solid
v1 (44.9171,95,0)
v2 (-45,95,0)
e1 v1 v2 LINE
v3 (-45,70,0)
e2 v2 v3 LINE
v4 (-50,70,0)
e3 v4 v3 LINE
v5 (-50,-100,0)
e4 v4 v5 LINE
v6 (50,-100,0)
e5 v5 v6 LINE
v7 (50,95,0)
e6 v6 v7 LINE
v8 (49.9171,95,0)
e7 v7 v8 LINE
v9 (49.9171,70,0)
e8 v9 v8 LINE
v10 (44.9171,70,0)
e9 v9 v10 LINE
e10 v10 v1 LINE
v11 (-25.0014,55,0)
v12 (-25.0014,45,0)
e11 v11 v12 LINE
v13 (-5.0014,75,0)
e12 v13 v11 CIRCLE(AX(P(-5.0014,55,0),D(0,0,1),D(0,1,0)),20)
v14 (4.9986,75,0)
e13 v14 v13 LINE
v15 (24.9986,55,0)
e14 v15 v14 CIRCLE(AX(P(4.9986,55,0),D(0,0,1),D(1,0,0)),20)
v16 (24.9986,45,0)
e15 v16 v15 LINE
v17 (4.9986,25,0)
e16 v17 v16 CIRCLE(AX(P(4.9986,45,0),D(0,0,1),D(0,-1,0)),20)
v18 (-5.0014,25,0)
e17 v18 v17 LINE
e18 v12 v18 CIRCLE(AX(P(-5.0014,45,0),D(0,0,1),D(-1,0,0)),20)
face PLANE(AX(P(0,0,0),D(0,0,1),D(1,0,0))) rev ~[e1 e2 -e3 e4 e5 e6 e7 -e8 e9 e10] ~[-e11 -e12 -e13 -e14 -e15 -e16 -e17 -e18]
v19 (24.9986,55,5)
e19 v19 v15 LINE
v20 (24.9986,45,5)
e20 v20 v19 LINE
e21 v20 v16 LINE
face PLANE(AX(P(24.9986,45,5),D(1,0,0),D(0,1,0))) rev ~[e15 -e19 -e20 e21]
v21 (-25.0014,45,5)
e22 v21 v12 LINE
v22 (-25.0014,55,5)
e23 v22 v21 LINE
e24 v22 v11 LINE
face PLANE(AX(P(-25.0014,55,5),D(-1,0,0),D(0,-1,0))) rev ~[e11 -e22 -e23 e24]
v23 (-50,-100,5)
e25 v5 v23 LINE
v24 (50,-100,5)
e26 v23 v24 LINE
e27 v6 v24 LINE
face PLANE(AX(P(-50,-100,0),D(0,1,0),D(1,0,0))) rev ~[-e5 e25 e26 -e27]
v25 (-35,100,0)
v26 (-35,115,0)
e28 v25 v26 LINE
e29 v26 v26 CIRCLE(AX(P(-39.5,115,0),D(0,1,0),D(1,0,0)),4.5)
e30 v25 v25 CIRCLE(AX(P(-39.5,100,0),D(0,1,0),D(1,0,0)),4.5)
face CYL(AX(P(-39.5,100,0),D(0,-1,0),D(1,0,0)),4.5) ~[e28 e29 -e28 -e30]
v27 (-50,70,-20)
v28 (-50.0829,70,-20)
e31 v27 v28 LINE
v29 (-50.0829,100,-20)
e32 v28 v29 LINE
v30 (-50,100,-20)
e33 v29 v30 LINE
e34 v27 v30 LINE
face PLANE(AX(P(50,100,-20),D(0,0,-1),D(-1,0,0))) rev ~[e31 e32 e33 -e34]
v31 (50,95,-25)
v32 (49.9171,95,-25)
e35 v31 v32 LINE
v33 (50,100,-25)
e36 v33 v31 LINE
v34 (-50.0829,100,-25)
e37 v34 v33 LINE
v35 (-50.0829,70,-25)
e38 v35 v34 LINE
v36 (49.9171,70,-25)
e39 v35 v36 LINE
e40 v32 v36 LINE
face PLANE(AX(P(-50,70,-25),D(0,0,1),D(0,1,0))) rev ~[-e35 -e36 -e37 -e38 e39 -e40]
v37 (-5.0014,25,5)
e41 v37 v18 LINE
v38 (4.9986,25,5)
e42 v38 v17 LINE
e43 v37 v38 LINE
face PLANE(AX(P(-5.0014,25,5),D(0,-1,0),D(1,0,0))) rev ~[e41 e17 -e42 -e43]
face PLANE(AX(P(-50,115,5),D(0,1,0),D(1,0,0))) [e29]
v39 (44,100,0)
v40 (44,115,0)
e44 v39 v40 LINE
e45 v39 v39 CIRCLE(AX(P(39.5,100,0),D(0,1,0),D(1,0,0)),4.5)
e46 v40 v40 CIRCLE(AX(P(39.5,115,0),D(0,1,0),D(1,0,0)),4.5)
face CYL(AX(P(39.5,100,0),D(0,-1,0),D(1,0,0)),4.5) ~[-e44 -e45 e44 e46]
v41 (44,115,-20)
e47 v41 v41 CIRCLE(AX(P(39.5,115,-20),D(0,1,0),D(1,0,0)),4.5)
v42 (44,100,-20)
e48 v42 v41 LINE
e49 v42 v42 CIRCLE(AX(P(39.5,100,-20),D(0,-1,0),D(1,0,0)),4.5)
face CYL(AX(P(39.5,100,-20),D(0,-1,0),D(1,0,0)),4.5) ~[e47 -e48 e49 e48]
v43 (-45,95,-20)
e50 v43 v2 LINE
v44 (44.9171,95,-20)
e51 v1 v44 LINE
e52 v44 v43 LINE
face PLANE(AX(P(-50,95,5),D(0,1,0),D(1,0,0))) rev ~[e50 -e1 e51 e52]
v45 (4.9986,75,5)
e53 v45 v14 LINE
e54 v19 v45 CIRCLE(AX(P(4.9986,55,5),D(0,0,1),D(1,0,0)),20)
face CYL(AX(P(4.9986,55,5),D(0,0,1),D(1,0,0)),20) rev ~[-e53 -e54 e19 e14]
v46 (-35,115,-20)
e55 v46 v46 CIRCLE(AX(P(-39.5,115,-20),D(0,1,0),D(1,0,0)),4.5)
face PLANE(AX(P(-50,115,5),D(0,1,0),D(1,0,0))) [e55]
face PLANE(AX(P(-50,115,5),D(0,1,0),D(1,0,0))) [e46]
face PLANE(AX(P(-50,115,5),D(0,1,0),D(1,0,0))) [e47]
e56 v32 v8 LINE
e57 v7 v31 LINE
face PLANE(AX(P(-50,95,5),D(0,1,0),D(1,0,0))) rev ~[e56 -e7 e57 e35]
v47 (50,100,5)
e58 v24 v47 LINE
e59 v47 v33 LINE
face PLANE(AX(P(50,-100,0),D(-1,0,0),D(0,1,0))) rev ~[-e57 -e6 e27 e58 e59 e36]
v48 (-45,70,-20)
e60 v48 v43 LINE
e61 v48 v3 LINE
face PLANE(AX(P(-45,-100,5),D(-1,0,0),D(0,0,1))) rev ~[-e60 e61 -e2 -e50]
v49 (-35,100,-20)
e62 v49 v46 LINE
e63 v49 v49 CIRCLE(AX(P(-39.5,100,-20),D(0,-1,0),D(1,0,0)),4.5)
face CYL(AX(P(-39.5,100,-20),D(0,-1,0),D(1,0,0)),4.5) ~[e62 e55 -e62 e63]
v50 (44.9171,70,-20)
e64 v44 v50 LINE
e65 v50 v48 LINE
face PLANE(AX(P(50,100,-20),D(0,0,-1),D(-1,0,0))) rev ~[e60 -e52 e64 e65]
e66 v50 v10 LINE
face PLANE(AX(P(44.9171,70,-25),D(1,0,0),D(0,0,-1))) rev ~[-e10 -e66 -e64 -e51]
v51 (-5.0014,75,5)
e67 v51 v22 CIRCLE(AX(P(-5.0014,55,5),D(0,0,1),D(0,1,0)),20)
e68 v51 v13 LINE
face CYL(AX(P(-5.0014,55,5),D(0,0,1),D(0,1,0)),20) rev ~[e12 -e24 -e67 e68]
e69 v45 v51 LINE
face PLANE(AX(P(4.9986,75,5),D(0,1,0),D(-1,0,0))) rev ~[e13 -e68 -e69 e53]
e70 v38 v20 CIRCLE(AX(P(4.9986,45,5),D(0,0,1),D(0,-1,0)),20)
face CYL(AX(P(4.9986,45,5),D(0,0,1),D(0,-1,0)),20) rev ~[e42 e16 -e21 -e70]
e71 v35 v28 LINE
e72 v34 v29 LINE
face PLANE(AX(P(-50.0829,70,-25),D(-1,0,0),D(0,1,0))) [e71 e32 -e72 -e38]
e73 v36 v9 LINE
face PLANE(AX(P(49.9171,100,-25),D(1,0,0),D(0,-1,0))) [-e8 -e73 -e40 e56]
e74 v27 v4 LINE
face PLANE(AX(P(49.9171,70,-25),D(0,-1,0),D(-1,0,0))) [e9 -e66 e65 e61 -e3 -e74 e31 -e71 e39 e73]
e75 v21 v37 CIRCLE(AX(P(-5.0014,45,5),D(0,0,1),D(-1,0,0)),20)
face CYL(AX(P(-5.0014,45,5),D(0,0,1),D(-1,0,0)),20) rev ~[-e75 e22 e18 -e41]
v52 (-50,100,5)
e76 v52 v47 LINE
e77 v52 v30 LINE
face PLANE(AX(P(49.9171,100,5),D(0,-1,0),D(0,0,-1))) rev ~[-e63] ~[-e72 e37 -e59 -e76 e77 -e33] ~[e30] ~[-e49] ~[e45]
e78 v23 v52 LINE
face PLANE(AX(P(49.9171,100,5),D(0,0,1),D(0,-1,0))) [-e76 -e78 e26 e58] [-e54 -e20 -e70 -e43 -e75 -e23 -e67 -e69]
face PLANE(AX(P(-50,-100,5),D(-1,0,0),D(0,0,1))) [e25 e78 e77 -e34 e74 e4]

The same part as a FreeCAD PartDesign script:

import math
import FreeCAD as App
import Part
import Sketcher


def add_polygon(sketch, points):
    """Adds a closed chain of lines whose ends are joined by coincident constraints."""
    first, n = sketch.GeometryCount, len(points)
    for a, b in zip(points, points[1:] + points[:1]):
        sketch.addGeometry(Part.LineSegment(App.Vector(*a, 0), App.Vector(*b, 0)), False)
    for i in range(n):
        sketch.addConstraint(Sketcher.Constraint("Coincident", first + i, 2, first + (i + 1) % n, 1))

doc = App.newDocument("Part")
body = doc.addObject("PartDesign::Body", "Body")

# Sketch on XY plane
sketch1 = body.newObject("Sketcher::SketchObject", "Sketch")
sketch1.AttachmentSupport = (doc.getObject("XY_Plane"), [""])
sketch1.MapMode = "FlatFace"
add_polygon(sketch1, [(-50, 100), (-50, -100), (50, -100), (50, 100)])  # lines 0-3
sketch1.addConstraint([
    Sketcher.Constraint("Vertical", 0),
    Sketcher.Constraint("Horizontal", 1),
    Sketcher.Constraint("Vertical", 2),
    Sketcher.Constraint("Horizontal", 3),
    Sketcher.Constraint("Symmetric", 0, 2, 2, 2, -1, 1),
    Sketcher.Constraint("DistanceX", 1, 1, 1, 2, 100.0),
    Sketcher.Constraint("DistanceY", 0, 2, 0, 1, 200.0),
])
pad1 = body.newObject("PartDesign::Pad", "Pad")
pad1.Profile = sketch1
pad1.Length = 5

# Sketch on XY plane
sketch2 = body.newObject("Sketcher::SketchObject", "Sketch001")
sketch2.AttachmentSupport = (doc.getObject("XY_Plane"), [""])
sketch2.MapMode = "FlatFace"
sketch2.AttachmentOffset = App.Placement(App.Vector(0, 0, 5), App.Rotation())
sketch2.addGeometry([
    Part.ArcOfCircle(Part.Circle(App.Vector(5, 55, 0), App.Vector(0, 0, 1), 20), math.radians(0), math.radians(90)),  # 0
    Part.LineSegment(App.Vector(5, 75, 0), App.Vector(-5, 75, 0)),  # 1
    Part.ArcOfCircle(Part.Circle(App.Vector(-5, 55, 0), App.Vector(0, 0, 1), 20), math.radians(90), math.radians(180)),  # 2
    Part.LineSegment(App.Vector(-25, 55, 0), App.Vector(-25, 45, 0)),  # 3
    Part.ArcOfCircle(Part.Circle(App.Vector(-5, 45, 0), App.Vector(0, 0, 1), 20), math.radians(180), math.radians(270)),  # 4
    Part.LineSegment(App.Vector(-5, 25, 0), App.Vector(5, 25, 0)),  # 5
    Part.ArcOfCircle(Part.Circle(App.Vector(5, 45, 0), App.Vector(0, 0, 1), 20), math.radians(-90), math.radians(0)),  # 6
    Part.LineSegment(App.Vector(25, 45, 0), App.Vector(25, 55, 0)),  # 7
], False)
sketch2.addConstraint([
    Sketcher.Constraint("Tangent", 0, 2, 1, 1),
    Sketcher.Constraint("Tangent", 1, 2, 2, 1),
    Sketcher.Constraint("Tangent", 2, 2, 3, 1),
    Sketcher.Constraint("Tangent", 3, 2, 4, 1),
    Sketcher.Constraint("Tangent", 4, 2, 5, 1),
    Sketcher.Constraint("Tangent", 5, 2, 6, 1),
    Sketcher.Constraint("Tangent", 6, 2, 7, 1),
    Sketcher.Constraint("Tangent", 7, 2, 0, 1),
    Sketcher.Constraint("Horizontal", 1),
    Sketcher.Constraint("Vertical", 3),
    Sketcher.Constraint("Horizontal", 5),
    Sketcher.Constraint("Vertical", 7),
    Sketcher.Constraint("Equal", 0, 2),
    Sketcher.Constraint("Equal", 2, 4),
    Sketcher.Constraint("Equal", 4, 6),
    Sketcher.Constraint("Equal", 5, 3),
    Sketcher.Constraint("Radius", 0, 20.0),
    Sketcher.Constraint("DistanceX", 1, 2, 1, 1, 10.0),
    Sketcher.Constraint("DistanceY", -1, 1, 0, 3, 55.0),
    Sketcher.Constraint("DistanceX", -1, 1, 0, 3, 4.9986),
])
pocket1 = body.newObject("PartDesign::Pocket", "Pocket")
pocket1.Profile = sketch2
pocket1.Length = 5

# Sketch on XZ plane
sketch3 = body.newObject("Sketcher::SketchObject", "Sketch002")
sketch3.AttachmentSupport = (doc.getObject("XZ_Plane"), [""])
sketch3.MapMode = "FlatFace"
sketch3.AttachmentOffset = App.Placement(App.Vector(0, 0, -100), App.Rotation())
add_polygon(sketch3, [(-50, 5), (50, 5), (50, -25), (-50, -25)])  # lines 0-3
sketch3.addConstraint([
    Sketcher.Constraint("Horizontal", 0),
    Sketcher.Constraint("Vertical", 1),
    Sketcher.Constraint("Horizontal", 2),
    Sketcher.Constraint("Vertical", 3),
    Sketcher.Constraint("DistanceX", 0, 1, 0, 2, 100.0),
    Sketcher.Constraint("DistanceY", 1, 2, 1, 1, 30.0),
    Sketcher.Constraint("DistanceX", -1, 1, 0, 2, 50.0),
    Sketcher.Constraint("DistanceY", -1, 1, 0, 2, 5.0),
])
pad2 = body.newObject("PartDesign::Pad", "Pad001")
pad2.Profile = sketch3
pad2.Length = 5

# Sketch on XZ plane
sketch4 = body.newObject("Sketcher::SketchObject", "Sketch003")
sketch4.AttachmentSupport = (doc.getObject("XZ_Plane"), [""])
sketch4.MapMode = "FlatFace"
sketch4.AttachmentOffset = App.Placement(App.Vector(0, 0, -100), App.Rotation())
sketch4.addGeometry([
    Part.Circle(App.Vector(-39.5, 0, 0), App.Vector(0, 0, 1), 4.5),
    Part.Circle(App.Vector(39.5, 0, 0), App.Vector(0, 0, 1), 4.5),
    Part.Circle(App.Vector(-39.5, -20, 0), App.Vector(0, 0, 1), 4.5),
    Part.Circle(App.Vector(39.5, -20, 0), App.Vector(0, 0, 1), 4.5),
], False)
sketch4.addConstraint([
    Sketcher.Constraint("Equal", 0, 1),
    Sketcher.Constraint("Equal", 1, 2),
    Sketcher.Constraint("Equal", 2, 3),
    Sketcher.Constraint("Symmetric", 0, 3, 1, 3, -1, 1),
    Sketcher.Constraint("Symmetric", 2, 3, 3, 3, -2),
    Sketcher.Constraint("PointOnObject", 0, 3, -1),
    Sketcher.Constraint("Vertical", 0, 3, 2, 3),
    Sketcher.Constraint("Diameter", 0, 9.0),
    Sketcher.Constraint("DistanceY", 2, 3, -1, 1, 20.0),
    Sketcher.Constraint("DistanceX", 0, 3, 1, 3, 79.0),
])
pad3 = body.newObject("PartDesign::Pad", "Pad002")
pad3.Profile = sketch4
pad3.Length = 15
pad3.Reversed = True

# Sketch on XY plane
sketch5 = body.newObject("Sketcher::SketchObject", "Sketch004")
sketch5.AttachmentSupport = (doc.getObject("XY_Plane"), [""])
sketch5.MapMode = "FlatFace"
sketch5.AttachmentOffset = App.Placement(App.Vector(0, 0, -25), App.Rotation())
add_polygon(sketch5, [(-50, 70), (-50, 100), (50, 100), (50, 70)])  # lines 0-3
sketch5.addConstraint([
    Sketcher.Constraint("Vertical", 0),
    Sketcher.Constraint("Horizontal", 1),
    Sketcher.Constraint("Vertical", 2),
    Sketcher.Constraint("Horizontal", 3),
    Sketcher.Constraint("DistanceX", 1, 1, 1, 2, 100.0),
    Sketcher.Constraint("DistanceY", 0, 1, 0, 2, 30.0),
    Sketcher.Constraint("DistanceY", -1, 1, 0, 2, 100.0),
    Sketcher.Constraint("DistanceX", 0, 2, -1, 1, 50.083),
])
pad4 = body.newObject("PartDesign::Pad", "Pad003")
pad4.Profile = sketch5
pad4.Length = 5

# Sketch on YZ plane
sketch6 = body.newObject("Sketcher::SketchObject", "Sketch005")
sketch6.AttachmentSupport = (doc.getObject("YZ_Plane"), [""])
sketch6.MapMode = "FlatFace"
sketch6.AttachmentOffset = App.Placement(App.Vector(0, 0, 49.9171), App.Rotation())
add_polygon(sketch6, [(70, 5), (70, -25), (100, -25), (100, 5)])  # lines 0-3
sketch6.addConstraint([
    Sketcher.Constraint("Vertical", 0),
    Sketcher.Constraint("Horizontal", 1),
    Sketcher.Constraint("Vertical", 2),
    Sketcher.Constraint("Horizontal", 3),
    Sketcher.Constraint("Equal", 3, 0),
    Sketcher.Constraint("DistanceX", 1, 1, 1, 2, 30.0),
    Sketcher.Constraint("DistanceX", -1, 1, 0, 2, 70.0),
    Sketcher.Constraint("DistanceY", 0, 2, -1, 1, 25.0),
])
pad5 = body.newObject("PartDesign::Pad", "Pad004")
pad5.Profile = sketch6
pad5.Length = 5
pad5.Reversed = True

# Sketch on YZ plane
sketch7 = body.newObject("Sketcher::SketchObject", "Sketch006")
sketch7.AttachmentSupport = (doc.getObject("YZ_Plane"), [""])
sketch7.MapMode = "FlatFace"
sketch7.AttachmentOffset = App.Placement(App.Vector(0, 0, -50), App.Rotation())
add_polygon(sketch7, [(100, 5), (100, -25), (70, -25), (70, 5)])  # lines 0-3
sketch7.addConstraint([
    Sketcher.Constraint("Vertical", 0),
    Sketcher.Constraint("Horizontal", 1),
    Sketcher.Constraint("Vertical", 2),
    Sketcher.Constraint("Horizontal", 3),
    Sketcher.Constraint("Equal", 3, 0),
    Sketcher.Constraint("DistanceX", 1, 2, 1, 1, 30.0),
    Sketcher.Constraint("DistanceX", -1, 1, 0, 2, 100.0),
    Sketcher.Constraint("DistanceY", 0, 2, -1, 1, 25.0),
])
pad6 = body.newObject("PartDesign::Pad", "Pad005")
pad6.Profile = sketch7
pad6.Length = 5

doc.recompute()
